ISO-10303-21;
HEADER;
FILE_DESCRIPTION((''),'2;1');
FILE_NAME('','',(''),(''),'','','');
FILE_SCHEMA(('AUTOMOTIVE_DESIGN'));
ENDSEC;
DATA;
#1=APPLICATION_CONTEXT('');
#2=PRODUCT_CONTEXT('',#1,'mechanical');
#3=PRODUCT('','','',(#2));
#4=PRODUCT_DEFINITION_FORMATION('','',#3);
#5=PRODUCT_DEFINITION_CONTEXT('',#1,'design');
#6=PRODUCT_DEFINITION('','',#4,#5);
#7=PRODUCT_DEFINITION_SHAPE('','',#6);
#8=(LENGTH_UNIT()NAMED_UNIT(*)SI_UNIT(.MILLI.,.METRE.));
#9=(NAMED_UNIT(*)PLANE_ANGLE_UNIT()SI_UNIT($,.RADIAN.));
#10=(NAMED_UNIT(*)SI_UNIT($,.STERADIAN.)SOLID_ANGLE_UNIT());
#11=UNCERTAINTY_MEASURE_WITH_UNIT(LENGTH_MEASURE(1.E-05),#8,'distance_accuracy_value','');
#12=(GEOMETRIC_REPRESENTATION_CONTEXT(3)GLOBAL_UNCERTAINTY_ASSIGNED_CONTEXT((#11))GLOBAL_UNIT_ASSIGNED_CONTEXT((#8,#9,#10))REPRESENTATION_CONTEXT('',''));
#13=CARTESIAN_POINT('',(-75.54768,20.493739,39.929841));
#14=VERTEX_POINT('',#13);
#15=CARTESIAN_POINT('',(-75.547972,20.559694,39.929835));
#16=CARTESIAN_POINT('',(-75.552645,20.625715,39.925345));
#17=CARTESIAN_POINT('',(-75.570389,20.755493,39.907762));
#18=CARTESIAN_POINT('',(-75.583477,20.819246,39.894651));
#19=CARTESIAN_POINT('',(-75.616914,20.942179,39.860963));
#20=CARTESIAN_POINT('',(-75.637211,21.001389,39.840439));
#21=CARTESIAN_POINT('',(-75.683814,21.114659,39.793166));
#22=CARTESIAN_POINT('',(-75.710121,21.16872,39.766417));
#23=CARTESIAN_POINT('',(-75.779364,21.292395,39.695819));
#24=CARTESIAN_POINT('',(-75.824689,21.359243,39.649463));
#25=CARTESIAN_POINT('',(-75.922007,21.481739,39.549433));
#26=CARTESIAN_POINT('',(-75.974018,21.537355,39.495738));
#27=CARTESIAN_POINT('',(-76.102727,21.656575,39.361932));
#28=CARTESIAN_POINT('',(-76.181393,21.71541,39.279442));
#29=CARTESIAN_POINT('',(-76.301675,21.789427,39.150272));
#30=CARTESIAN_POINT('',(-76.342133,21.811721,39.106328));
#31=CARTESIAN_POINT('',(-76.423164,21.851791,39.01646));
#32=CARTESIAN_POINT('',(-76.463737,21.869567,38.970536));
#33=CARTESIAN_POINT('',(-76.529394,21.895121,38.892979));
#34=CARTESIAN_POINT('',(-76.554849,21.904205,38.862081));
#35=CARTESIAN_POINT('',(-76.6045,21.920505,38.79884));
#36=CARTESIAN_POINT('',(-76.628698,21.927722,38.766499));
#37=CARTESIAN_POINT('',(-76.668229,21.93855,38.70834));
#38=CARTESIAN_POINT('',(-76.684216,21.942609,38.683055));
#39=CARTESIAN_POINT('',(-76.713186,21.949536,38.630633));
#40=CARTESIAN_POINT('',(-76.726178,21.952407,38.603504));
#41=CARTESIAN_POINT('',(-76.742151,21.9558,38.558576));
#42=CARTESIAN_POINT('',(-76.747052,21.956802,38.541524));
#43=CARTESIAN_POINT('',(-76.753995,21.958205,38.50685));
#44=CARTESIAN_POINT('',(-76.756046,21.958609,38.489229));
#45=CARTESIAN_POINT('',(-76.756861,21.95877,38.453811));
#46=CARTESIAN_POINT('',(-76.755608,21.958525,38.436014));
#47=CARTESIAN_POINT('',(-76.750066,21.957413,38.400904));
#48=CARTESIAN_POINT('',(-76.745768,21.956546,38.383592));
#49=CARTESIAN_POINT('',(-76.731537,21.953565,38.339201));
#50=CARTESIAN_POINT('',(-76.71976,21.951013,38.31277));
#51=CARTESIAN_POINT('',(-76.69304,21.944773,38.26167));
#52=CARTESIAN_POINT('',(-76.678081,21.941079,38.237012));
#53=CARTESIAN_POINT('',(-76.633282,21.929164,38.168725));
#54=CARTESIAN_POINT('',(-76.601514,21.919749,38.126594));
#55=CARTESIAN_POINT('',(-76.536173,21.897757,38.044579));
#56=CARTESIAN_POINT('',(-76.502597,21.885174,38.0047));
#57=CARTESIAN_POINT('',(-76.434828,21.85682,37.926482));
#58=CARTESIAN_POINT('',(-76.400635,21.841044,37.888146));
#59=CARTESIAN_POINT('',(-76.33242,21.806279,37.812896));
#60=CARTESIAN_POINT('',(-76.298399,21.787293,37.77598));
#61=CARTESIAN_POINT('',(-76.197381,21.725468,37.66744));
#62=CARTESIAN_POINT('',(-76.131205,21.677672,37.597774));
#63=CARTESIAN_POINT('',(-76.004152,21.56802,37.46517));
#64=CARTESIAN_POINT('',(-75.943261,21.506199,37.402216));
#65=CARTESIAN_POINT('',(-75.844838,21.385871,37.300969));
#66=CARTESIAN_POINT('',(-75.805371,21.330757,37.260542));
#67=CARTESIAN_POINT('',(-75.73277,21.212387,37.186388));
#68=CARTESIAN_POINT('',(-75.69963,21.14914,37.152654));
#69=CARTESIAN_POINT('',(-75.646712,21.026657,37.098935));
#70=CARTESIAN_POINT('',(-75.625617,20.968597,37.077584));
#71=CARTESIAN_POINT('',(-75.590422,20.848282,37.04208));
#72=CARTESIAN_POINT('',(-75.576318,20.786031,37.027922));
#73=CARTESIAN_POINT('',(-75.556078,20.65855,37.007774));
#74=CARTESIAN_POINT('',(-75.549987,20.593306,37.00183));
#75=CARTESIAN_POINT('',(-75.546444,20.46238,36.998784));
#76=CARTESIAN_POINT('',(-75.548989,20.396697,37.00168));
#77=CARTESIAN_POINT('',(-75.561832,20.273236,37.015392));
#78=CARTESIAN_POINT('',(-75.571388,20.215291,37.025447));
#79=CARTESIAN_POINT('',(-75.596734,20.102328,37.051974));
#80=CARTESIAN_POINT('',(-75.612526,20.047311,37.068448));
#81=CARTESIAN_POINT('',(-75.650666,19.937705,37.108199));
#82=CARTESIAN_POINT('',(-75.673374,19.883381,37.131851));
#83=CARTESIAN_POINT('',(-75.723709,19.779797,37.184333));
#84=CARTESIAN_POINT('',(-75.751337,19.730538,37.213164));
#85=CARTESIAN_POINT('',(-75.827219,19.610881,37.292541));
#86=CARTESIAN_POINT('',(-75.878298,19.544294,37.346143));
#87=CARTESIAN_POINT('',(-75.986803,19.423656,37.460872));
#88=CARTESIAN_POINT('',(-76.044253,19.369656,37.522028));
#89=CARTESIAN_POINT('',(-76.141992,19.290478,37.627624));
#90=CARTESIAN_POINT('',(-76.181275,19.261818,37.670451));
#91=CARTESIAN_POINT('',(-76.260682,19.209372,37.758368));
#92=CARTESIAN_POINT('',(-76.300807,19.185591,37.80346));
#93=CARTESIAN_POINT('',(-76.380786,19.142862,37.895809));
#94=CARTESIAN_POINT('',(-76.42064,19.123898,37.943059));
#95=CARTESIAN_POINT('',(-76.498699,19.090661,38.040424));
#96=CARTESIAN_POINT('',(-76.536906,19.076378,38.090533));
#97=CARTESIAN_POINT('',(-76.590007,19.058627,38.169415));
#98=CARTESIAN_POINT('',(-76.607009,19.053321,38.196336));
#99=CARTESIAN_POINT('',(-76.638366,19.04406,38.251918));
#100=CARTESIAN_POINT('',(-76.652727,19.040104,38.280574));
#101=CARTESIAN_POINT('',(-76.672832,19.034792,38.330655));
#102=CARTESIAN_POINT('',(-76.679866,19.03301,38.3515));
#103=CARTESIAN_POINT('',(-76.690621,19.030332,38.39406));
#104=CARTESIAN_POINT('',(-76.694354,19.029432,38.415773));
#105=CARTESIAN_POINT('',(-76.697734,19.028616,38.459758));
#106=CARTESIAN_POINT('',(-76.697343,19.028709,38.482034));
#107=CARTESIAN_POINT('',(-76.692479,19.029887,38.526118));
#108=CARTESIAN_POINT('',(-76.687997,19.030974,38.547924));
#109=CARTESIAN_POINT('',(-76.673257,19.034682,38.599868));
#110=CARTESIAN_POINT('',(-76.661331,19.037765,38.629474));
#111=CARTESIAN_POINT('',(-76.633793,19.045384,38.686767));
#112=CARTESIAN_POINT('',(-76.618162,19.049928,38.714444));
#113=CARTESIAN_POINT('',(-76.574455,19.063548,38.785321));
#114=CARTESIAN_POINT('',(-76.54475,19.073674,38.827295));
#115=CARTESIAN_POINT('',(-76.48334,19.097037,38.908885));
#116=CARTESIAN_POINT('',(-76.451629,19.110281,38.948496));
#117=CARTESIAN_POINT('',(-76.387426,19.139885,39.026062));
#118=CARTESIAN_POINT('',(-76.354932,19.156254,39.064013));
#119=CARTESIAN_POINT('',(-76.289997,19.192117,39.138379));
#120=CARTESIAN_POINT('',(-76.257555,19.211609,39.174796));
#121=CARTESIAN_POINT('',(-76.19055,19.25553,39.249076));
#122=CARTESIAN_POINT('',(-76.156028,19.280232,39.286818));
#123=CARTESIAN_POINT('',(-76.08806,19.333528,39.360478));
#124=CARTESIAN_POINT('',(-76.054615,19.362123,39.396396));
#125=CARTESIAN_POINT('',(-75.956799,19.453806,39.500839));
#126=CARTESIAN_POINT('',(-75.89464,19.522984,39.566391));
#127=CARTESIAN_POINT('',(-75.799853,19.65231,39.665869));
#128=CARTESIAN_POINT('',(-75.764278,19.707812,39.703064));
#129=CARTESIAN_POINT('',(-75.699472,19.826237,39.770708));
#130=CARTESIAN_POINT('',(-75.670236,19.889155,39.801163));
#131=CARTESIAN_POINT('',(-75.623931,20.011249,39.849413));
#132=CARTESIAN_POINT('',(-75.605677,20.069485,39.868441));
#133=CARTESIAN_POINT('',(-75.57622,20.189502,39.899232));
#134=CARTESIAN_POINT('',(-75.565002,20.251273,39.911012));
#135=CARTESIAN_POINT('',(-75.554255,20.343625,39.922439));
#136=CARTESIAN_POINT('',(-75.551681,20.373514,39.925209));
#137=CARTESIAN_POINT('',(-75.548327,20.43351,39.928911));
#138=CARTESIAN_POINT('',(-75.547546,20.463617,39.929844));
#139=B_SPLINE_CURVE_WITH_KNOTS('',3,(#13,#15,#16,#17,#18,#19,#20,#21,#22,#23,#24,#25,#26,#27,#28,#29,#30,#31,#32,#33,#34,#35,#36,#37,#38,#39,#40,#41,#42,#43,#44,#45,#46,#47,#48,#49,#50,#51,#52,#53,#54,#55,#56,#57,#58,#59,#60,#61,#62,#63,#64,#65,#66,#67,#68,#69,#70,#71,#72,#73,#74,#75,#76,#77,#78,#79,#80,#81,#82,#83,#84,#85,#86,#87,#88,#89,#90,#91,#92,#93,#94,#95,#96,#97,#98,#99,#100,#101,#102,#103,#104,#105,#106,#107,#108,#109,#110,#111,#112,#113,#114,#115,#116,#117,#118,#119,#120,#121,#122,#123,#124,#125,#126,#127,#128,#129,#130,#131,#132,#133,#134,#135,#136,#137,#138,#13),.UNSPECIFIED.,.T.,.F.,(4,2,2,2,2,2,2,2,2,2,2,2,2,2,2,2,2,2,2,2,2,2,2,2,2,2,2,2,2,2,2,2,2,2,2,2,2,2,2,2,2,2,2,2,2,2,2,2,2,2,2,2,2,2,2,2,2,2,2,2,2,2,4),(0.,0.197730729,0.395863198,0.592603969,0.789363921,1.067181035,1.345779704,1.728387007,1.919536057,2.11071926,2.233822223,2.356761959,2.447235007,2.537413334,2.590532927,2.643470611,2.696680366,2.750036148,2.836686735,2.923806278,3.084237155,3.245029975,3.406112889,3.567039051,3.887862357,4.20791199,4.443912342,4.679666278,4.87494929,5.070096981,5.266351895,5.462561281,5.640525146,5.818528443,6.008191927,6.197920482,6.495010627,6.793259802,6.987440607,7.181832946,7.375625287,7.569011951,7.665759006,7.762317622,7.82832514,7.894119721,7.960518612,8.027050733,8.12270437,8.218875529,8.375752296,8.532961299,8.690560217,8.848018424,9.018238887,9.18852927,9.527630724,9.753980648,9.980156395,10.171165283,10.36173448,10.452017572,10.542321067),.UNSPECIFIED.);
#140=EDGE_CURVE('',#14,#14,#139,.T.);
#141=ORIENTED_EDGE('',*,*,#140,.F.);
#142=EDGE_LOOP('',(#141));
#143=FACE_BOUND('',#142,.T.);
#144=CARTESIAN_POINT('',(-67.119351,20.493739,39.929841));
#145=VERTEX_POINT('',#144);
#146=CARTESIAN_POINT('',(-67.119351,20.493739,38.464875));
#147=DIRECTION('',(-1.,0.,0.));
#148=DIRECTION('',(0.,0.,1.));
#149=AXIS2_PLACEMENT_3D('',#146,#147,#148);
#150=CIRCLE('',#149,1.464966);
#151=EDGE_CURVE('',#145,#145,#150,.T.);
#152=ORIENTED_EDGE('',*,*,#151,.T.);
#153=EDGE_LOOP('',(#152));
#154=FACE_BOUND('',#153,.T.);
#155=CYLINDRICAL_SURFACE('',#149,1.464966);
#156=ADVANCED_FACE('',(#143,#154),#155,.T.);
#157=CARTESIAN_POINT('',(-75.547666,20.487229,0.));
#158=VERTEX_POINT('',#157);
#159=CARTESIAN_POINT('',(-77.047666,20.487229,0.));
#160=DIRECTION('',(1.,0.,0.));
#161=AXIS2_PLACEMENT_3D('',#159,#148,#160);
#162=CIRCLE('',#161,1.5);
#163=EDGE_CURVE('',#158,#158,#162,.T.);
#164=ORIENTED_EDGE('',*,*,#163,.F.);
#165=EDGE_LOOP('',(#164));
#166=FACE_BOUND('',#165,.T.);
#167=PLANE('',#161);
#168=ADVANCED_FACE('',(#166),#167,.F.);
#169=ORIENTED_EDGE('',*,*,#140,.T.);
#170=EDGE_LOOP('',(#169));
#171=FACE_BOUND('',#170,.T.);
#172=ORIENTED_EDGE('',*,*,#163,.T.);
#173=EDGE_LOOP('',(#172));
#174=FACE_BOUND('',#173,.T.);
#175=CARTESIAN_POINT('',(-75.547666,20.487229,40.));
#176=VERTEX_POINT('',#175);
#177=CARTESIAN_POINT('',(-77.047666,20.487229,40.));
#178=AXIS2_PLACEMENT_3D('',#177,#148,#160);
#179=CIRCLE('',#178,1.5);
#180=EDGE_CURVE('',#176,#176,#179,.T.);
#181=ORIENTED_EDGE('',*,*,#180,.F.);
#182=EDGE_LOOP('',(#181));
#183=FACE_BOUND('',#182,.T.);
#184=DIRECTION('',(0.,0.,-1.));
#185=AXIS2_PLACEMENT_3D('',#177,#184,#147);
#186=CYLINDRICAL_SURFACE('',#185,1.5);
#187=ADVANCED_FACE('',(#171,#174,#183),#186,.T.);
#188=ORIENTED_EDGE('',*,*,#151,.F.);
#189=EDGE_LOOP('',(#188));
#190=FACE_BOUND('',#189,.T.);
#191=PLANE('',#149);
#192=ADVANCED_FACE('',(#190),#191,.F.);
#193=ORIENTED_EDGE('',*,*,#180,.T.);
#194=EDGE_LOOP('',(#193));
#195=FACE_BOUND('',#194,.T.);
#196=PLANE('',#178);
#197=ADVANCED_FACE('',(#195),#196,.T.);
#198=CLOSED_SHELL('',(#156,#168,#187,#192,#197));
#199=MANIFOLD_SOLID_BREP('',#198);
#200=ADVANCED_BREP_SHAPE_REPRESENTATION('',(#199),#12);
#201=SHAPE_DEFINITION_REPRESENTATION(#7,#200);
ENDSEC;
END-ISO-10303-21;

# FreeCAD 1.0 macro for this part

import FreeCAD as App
import Part
import Sketcher
from FreeCAD import Vector

doc = App.newDocument("Part")
body = doc.addObject("PartDesign::Body", "Body")

sketch1 = body.newObject("Sketcher::SketchObject", "Sketch")
sketch1.AttachmentSupport = (doc.getObject("XY_Plane"), [""])
sketch1.MapMode = "FlatFace"
sketch1.addGeometry(Part.Circle(Vector(-77, 20.5, 0), Vector(0, 0, 1), 1.5), False)
sketch1.addConstraint(Sketcher.Constraint("Diameter", 0, 3.0))
sketch1.addConstraint(Sketcher.Constraint("DistanceY", -1, 1, 0, 3, 20.487229))
sketch1.addConstraint(Sketcher.Constraint("DistanceX", 0, 3, -1, 1, 77.047666))
pad1 = body.newObject("PartDesign::Pad", "Pad")
pad1.Profile = sketch1
pad1.Length = 40

sketch2 = body.newObject("Sketcher::SketchObject", "Sketch001")
sketch2.AttachmentSupport = (doc.getObject("XY_Plane"), [""])
sketch2.MapMode = "FlatFace"
sketch2.AttachmentOffset = App.Placement(Vector(0, 0, 40), App.Rotation())
sketch2.addGeometry(Part.LineSegment(Vector(-77.1, 24, 0), Vector(-77.1, 22, 0)), False)
sketch2.addGeometry(Part.LineSegment(Vector(-77.1, 22, 0), Vector(-67.1, 22, 0)), False)
sketch2.addGeometry(Part.LineSegment(Vector(-67.1, 22, 0), Vector(-67.1, 24, 0)), False)
sketch2.addGeometry(Part.LineSegment(Vector(-67.1, 24, 0), Vector(-77.1, 24, 0)), False)
sketch2.addConstraint(Sketcher.Constraint("Coincident", 0, 2, 1, 1))
sketch2.addConstraint(Sketcher.Constraint("Coincident", 1, 2, 2, 1))
sketch2.addConstraint(Sketcher.Constraint("Coincident", 2, 2, 3, 1))
sketch2.addConstraint(Sketcher.Constraint("Coincident", 3, 2, 0, 1))
sketch2.addConstraint(Sketcher.Constraint("Vertical", 0))
sketch2.addConstraint(Sketcher.Constraint("Horizontal", 1))
sketch2.addConstraint(Sketcher.Constraint("Vertical", 2))
sketch2.addConstraint(Sketcher.Constraint("Horizontal", 3))
sketch2.addConstraint(Sketcher.Constraint("DistanceX", 1, 1, 1, 2, 10.0))
sketch2.addConstraint(Sketcher.Constraint("DistanceY", 0, 2, 0, 1, 1.987336))
sketch2.addConstraint(Sketcher.Constraint("DistanceX", 0, 2, -1, 1, 77.119351))
sketch2.addConstraint(Sketcher.Constraint("DistanceY", -1, 1, 2, 2, 23.972852))
pad2 = body.newObject("PartDesign::Pad", "Pad001")
pad2.Profile = sketch2
pad2.Length = 10

sketch3 = body.newObject("Sketcher::SketchObject", "Sketch002")
sketch3.AttachmentSupport = (doc.getObject("YZ_Plane"), [""])
sketch3.MapMode = "FlatFace"
sketch3.AttachmentOffset = App.Placement(Vector(0, 0, -77.119351), App.Rotation())
sketch3.addGeometry(Part.Circle(Vector(20.5, 38.5, 0), Vector(0, 0, 1), 1.5), False)
sketch3.addConstraint(Sketcher.Constraint("Diameter", 0, 2.929931))
sketch3.addConstraint(Sketcher.Constraint("DistanceX", -1, 1, 0, 3, 20.493739))
sketch3.addConstraint(Sketcher.Constraint("DistanceY", -1, 1, 0, 3, 38.464875))
pad3 = body.newObject("PartDesign::Pad", "Pad002")
pad3.Profile = sketch3
pad3.Length = 10

sketch4 = body.newObject("Sketcher::SketchObject", "Sketch003")
sketch4.AttachmentSupport = (doc.getObject("YZ_Plane"), [""])
sketch4.MapMode = "FlatFace"
sketch4.AttachmentOffset = App.Placement(Vector(0, 0, -77.119351), App.Rotation())
sketch4.addGeometry(Part.LineSegment(Vector(24, 40, 0), Vector(20.8, 40, 0)), False)
sketch4.addGeometry(Part.LineSegment(Vector(20.8, 40, 0), Vector(20.8, 51.3, 0)), False)
sketch4.addGeometry(Part.LineSegment(Vector(20.8, 51.3, 0), Vector(24, 51.3, 0)), False)
sketch4.addGeometry(Part.LineSegment(Vector(24, 51.3, 0), Vector(24, 40, 0)), False)
sketch4.addConstraint(Sketcher.Constraint("Coincident", 0, 2, 1, 1))
sketch4.addConstraint(Sketcher.Constraint("Coincident", 1, 2, 2, 1))
sketch4.addConstraint(Sketcher.Constraint("Coincident", 2, 2, 3, 1))
sketch4.addConstraint(Sketcher.Constraint("Coincident", 3, 2, 0, 1))
sketch4.addConstraint(Sketcher.Constraint("Horizontal", 0))
sketch4.addConstraint(Sketcher.Constraint("Vertical", 1))
sketch4.addConstraint(Sketcher.Constraint("Horizontal", 2))
sketch4.addConstraint(Sketcher.Constraint("Vertical", 3))
sketch4.addConstraint(Sketcher.Constraint("DistanceY", -1, 1, 0, 2, 40.0))
sketch4.addConstraint(Sketcher.Constraint("DistanceX", -1, 1, 0, 2, 20.843999))
sketch4.addConstraint(Sketcher.Constraint("DistanceY", 1, 1, 1, 2, 11.252229))
sketch4.addConstraint(Sketcher.Constraint("DistanceX", 0, 2, 0, 1, 3.128853))
pocket1 = body.newObject("PartDesign::Pocket", "Pocket")
pocket1.Profile = sketch4
pocket1.Type = "ThroughAll"
pocket1.Reversed = True

doc.recompute()
